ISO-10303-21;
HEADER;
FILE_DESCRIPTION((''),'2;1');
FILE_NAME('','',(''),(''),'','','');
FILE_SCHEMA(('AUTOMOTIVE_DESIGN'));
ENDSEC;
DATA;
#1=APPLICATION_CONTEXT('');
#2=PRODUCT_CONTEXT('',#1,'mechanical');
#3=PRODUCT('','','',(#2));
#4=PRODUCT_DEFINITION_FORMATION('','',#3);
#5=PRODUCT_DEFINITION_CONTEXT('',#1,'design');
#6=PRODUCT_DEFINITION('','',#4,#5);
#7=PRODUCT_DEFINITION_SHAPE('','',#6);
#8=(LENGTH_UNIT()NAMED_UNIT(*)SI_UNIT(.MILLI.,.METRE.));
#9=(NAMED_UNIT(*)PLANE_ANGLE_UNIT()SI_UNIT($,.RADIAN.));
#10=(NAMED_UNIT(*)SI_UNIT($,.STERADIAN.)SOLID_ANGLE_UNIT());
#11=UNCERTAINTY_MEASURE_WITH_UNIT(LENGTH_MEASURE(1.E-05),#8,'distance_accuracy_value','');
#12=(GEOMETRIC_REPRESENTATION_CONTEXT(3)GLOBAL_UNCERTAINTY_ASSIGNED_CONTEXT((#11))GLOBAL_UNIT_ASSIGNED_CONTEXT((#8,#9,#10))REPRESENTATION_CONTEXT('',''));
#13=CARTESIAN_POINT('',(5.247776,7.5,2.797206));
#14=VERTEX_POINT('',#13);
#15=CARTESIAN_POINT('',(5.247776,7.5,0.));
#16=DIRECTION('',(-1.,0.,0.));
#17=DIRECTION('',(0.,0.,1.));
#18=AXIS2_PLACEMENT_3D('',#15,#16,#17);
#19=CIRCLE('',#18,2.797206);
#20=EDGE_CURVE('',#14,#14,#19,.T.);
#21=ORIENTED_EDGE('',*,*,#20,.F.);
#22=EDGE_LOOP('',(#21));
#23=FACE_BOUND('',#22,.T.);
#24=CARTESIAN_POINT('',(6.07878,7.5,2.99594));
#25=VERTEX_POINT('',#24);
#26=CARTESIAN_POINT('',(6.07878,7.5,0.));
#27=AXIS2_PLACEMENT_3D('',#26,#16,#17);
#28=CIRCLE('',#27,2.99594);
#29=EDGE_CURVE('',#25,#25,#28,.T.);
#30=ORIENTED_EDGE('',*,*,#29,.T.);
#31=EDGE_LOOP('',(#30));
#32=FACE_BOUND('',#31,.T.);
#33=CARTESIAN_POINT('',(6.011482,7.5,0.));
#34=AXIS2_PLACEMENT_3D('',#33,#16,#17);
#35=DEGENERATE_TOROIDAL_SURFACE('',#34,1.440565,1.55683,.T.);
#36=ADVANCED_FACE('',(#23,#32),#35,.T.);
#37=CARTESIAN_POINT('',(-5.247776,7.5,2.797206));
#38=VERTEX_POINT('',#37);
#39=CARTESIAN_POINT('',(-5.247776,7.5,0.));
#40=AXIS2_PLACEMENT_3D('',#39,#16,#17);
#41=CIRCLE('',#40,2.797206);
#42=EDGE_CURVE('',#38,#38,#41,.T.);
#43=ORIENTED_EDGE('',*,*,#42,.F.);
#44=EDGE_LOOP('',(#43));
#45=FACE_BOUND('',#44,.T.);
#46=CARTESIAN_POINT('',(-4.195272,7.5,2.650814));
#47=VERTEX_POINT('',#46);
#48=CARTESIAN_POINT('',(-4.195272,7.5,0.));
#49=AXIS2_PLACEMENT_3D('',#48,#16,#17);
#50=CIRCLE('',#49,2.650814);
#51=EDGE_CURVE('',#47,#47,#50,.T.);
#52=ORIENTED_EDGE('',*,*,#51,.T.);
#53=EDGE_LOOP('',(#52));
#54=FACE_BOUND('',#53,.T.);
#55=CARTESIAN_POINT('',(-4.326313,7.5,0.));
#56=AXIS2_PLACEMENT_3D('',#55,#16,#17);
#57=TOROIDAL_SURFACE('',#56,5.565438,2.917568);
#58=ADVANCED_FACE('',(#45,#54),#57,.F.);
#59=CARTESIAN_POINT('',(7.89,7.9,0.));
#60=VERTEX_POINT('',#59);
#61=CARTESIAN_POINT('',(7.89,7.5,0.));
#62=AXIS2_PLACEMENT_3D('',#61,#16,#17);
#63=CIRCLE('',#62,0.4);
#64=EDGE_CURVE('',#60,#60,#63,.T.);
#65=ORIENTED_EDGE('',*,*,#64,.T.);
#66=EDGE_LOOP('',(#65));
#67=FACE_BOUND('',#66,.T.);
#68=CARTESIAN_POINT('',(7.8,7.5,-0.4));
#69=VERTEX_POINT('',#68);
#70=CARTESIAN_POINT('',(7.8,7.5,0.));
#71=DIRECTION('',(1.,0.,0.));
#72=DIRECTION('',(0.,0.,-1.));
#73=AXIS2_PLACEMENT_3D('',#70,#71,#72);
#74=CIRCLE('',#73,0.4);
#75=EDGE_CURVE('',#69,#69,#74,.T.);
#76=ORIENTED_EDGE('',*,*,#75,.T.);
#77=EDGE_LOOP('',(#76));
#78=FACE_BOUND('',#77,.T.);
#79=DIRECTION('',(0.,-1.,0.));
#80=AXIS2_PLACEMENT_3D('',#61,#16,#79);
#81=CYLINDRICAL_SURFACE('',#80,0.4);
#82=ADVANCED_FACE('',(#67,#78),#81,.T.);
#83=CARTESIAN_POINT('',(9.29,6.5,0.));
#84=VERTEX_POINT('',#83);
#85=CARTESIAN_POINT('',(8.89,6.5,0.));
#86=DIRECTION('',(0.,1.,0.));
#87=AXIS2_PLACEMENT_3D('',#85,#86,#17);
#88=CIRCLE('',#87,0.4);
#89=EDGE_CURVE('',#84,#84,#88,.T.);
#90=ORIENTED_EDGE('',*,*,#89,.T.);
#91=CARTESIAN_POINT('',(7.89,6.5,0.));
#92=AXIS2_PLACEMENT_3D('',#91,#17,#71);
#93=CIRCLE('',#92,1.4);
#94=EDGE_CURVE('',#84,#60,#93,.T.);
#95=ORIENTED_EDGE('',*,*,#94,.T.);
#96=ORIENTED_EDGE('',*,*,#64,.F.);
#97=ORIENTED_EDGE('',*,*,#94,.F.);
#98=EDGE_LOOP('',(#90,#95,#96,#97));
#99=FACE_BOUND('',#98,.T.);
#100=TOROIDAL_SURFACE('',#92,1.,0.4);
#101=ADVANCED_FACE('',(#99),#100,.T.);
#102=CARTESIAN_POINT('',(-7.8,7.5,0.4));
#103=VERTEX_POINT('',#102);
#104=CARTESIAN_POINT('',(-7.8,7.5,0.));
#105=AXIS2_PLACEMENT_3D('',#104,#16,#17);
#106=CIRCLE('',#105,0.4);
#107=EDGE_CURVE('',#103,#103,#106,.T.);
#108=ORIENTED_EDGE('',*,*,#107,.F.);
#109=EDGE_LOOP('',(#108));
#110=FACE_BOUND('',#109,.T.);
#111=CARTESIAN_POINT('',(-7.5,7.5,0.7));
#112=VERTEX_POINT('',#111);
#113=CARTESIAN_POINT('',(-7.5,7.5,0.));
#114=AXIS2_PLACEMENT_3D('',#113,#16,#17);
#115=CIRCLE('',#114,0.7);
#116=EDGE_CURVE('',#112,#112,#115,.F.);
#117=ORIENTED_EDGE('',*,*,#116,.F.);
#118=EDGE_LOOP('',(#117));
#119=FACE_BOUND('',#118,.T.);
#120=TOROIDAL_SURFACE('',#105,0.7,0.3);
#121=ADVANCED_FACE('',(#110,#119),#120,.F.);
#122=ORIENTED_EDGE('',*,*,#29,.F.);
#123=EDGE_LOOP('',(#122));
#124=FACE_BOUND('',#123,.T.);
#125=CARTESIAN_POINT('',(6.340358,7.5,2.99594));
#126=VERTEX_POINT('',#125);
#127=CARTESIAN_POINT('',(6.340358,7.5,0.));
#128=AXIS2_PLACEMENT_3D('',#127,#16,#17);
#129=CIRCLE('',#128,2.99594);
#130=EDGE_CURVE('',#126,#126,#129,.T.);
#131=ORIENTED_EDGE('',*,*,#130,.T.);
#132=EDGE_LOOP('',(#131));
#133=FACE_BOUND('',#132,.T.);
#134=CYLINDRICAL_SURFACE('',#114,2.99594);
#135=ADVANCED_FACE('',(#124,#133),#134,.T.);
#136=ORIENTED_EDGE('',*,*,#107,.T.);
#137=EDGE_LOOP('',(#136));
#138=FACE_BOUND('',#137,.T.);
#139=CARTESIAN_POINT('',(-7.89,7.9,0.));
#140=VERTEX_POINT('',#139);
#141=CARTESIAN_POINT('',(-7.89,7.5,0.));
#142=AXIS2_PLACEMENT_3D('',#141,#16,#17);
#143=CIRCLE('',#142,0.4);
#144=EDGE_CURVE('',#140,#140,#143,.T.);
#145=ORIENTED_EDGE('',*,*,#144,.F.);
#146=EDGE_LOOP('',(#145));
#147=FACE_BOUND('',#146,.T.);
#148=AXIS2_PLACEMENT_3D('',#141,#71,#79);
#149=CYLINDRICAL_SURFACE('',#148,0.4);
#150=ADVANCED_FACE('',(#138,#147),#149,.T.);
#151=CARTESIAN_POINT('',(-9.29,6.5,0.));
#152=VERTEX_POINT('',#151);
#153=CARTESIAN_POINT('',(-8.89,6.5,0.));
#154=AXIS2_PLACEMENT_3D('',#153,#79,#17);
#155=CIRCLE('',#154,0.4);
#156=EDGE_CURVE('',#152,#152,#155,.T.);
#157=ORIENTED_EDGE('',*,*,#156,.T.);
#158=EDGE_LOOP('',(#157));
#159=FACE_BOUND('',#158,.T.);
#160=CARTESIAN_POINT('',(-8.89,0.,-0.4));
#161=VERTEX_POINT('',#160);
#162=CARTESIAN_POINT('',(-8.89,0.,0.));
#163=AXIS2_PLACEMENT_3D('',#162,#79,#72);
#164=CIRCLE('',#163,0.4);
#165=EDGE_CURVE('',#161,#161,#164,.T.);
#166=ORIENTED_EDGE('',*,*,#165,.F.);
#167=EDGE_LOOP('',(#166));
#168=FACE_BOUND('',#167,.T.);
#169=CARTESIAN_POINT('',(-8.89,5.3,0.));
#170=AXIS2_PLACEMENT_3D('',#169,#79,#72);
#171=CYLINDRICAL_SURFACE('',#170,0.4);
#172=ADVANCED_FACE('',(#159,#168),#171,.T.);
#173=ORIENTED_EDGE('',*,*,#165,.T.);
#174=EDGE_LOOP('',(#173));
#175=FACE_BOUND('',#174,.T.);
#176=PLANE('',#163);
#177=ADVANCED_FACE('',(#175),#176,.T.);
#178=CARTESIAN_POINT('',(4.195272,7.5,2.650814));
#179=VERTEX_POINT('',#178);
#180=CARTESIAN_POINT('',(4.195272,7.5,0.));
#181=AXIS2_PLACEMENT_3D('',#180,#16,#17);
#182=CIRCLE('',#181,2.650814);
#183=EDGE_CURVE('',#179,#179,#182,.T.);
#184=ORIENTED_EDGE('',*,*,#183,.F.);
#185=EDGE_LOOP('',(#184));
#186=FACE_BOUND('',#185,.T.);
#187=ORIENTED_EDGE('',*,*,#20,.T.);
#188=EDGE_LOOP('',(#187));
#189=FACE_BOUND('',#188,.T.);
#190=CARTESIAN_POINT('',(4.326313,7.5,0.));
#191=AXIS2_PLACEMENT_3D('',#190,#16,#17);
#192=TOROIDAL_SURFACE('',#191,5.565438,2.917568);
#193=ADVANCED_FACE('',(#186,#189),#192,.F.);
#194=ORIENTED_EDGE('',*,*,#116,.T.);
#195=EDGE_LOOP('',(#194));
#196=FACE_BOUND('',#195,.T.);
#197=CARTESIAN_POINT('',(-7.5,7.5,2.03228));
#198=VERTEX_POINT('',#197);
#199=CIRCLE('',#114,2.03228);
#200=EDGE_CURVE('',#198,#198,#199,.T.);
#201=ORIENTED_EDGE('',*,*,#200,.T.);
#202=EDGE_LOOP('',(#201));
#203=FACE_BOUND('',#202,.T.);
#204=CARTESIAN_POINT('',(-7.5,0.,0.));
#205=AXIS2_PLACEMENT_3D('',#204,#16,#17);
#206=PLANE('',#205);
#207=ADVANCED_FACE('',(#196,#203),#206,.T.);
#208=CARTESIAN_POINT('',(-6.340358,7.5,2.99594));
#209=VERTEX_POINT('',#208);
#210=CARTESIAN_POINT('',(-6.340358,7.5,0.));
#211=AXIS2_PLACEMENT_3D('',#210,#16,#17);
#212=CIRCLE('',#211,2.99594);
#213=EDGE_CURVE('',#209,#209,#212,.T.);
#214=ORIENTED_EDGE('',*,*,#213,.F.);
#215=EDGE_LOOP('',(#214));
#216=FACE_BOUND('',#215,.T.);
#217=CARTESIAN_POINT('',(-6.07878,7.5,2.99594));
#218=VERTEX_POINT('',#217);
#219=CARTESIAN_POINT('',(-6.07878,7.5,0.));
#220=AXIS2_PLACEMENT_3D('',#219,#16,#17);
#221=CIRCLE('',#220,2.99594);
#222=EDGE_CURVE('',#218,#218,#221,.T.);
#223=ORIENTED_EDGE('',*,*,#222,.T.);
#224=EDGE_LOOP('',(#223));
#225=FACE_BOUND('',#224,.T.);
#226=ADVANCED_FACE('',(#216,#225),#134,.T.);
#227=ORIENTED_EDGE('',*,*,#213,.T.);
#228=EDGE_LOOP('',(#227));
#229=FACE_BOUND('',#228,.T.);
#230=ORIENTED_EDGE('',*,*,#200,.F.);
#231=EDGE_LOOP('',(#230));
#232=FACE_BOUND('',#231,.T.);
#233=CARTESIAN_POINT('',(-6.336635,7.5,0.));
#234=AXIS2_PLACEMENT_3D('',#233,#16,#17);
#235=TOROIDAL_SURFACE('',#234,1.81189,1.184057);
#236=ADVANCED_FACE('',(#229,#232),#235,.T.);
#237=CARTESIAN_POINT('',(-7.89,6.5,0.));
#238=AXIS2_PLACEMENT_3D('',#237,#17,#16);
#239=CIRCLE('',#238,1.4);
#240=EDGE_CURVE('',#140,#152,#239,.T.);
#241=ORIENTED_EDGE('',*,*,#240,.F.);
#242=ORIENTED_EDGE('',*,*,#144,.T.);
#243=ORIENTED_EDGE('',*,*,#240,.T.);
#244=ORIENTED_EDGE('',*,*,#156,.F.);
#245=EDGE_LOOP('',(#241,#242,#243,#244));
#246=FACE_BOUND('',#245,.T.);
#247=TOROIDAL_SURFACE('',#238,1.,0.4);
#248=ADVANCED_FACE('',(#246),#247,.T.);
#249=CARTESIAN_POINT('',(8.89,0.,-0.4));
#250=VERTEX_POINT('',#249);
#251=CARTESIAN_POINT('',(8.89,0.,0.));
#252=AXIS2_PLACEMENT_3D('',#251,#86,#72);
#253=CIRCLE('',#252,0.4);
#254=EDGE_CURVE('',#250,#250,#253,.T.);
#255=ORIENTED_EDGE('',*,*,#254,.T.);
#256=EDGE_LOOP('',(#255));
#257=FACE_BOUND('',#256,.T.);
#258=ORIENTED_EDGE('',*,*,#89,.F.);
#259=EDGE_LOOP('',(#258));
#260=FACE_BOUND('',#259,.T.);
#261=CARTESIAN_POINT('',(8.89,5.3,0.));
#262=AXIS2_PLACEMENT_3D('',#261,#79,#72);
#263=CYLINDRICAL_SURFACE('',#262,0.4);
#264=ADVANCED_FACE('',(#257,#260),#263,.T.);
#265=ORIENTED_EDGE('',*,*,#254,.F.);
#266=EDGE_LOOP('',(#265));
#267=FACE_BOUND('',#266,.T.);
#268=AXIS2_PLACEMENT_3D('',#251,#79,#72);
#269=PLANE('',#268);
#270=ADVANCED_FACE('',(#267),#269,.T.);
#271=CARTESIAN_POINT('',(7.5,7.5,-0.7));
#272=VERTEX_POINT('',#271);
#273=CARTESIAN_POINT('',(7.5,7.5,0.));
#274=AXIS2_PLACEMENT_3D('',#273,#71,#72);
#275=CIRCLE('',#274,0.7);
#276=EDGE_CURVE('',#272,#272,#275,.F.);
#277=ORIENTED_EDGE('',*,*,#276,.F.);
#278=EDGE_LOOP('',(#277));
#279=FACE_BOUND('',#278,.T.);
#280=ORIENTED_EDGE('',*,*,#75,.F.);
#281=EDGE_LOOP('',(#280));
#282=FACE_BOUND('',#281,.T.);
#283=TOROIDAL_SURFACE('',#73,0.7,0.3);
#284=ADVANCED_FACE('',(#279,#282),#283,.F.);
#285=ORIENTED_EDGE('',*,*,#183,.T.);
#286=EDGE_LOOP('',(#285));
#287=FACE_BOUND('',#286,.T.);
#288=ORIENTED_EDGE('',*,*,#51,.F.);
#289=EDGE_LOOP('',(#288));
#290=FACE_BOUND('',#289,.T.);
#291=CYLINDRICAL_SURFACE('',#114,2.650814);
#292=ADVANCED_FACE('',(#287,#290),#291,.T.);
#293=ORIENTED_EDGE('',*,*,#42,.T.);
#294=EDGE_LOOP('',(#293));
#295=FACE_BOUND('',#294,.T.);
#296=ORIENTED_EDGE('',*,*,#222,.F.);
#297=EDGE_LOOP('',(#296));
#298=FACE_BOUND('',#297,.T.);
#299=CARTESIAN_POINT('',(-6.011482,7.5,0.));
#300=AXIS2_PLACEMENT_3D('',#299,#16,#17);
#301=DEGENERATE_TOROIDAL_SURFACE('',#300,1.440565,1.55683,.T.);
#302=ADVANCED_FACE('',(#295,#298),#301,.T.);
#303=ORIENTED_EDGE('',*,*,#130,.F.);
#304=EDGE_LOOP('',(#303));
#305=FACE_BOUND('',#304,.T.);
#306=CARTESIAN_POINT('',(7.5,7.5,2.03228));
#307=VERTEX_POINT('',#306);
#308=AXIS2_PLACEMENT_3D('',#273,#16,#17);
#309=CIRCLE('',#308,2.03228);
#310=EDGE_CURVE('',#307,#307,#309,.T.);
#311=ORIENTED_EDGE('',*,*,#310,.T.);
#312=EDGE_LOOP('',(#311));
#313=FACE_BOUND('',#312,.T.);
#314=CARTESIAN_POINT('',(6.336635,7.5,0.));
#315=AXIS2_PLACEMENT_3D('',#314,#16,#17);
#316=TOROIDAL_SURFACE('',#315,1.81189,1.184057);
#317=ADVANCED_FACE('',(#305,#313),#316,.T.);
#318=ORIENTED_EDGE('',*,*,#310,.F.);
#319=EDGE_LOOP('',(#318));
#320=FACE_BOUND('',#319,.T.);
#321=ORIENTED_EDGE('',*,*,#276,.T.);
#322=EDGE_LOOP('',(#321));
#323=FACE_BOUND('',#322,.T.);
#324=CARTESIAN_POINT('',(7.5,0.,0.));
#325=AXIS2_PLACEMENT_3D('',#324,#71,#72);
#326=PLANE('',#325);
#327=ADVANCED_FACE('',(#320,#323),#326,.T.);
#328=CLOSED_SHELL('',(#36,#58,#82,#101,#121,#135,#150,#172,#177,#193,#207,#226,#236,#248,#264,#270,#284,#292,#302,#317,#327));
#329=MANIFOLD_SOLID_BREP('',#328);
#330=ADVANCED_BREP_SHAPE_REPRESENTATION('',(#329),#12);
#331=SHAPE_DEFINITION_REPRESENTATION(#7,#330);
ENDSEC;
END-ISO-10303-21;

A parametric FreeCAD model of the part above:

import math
import FreeCAD as App
import Part
import Sketcher
from FreeCAD import Vector


def edges_at(feature, points):
    """Names of the edges that pass closest to the given points."""
    edges = feature.Shape.Edges
    near = lambda p: min(range(len(edges)), key=lambda i: edges[i].distToShape(Part.Vertex(*p))[0])
    return sorted({f"Edge{near(p) + 1}" for p in points})

doc = App.newDocument("Part")
body = doc.addObject("PartDesign::Body", "Body")

# Sketch on XZ plane
sketch1 = doc.addObject("Sketcher::SketchObject", "Sketch")
body.addObject(sketch1)
sketch1.AttachmentSupport = (doc.XZ_Plane, [""])
sketch1.MapMode = "FlatFace"
sketch1.addGeometry(Part.Circle(Vector(8.89, 0, 0), Vector(0, 0, 1), 0.4), False)
sketch1.addConstraint([
    Sketcher.Constraint("PointOnObject", 0, 3, -1),
    Sketcher.Constraint("Diameter", 0, 0.8),
    Sketcher.Constraint("DistanceX", -1, 1, 0, 3, 8.89),
])
pad1 = doc.addObject("PartDesign::Pad", "Pad")
body.addObject(pad1)
pad1.Profile = sketch1
pad1.Length = 5.3
pad1.Reversed = True
body2 = doc.addObject("PartDesign::Body", "Body001")

# Sketch on XY plane
sketch2 = doc.addObject("Sketcher::SketchObject", "Sketch001")
body2.addObject(sketch2)
sketch2.AttachmentSupport = (doc.getObject("XY_Plane001"), [""])
sketch2.MapMode = "FlatFace"
sketch2.addGeometry([
    Part.LineSegment(Vector(-7.5, 7.5, 0), Vector(7.5, 7.5, 0)),  # 0
    Part.LineSegment(Vector(7.5, 7.5, 0), Vector(7.5, 9.53228, 0)),  # 1
    Part.ArcOfCircle(Part.Circle(Vector(6.336635, 9.31189, 0), Vector(0, 0, 1), 1.184057), math.radians(10.727096), math.radians(89.819862)),  # 2
    Part.LineSegment(Vector(6.340358, 10.49594, 0), Vector(6.07878, 10.49594, 0)),  # 3
    Part.ArcOfCircle(Part.Circle(Vector(6.011482, 8.940565, 0), Vector(0, 0, 1), 1.55683), math.radians(87.522454), math.radians(119.37685)),  # 4
    Part.ArcOfCircle(Part.Circle(Vector(4.326313, 13.065438, 0), Vector(0, 0, 1), 2.917568), math.radians(-92.574261), math.radians(-71.588906)),  # 5
    Part.LineSegment(Vector(4.195272, 10.150814, 0), Vector(-4.195272, 10.150814, 0)),  # 6
    Part.ArcOfCircle(Part.Circle(Vector(-4.326313, 13.065438, 0), Vector(0, 0, 1), 2.917568), math.radians(-108.411094), math.radians(-87.425739)),  # 7
    Part.ArcOfCircle(Part.Circle(Vector(-6.011482, 8.940565, 0), Vector(0, 0, 1), 1.55683), math.radians(60.62315), math.radians(92.477546)),  # 8
    Part.LineSegment(Vector(-6.07878, 10.49594, 0), Vector(-6.340358, 10.49594, 0)),  # 9
    Part.ArcOfCircle(Part.Circle(Vector(-6.336635, 9.31189, 0), Vector(0, 0, 1), 1.184057), math.radians(90.180138), math.radians(169.272904)),  # 10
    Part.LineSegment(Vector(-7.5, 9.53228, 0), Vector(-7.5, 7.5, 0)),  # 11
], False)
sketch2.addGeometry(Part.LineSegment(Vector(-7.5, 7.5, 0), Vector(7.5, 7.5, 0)), True)  # axis
sketch2.addConstraint([
    Sketcher.Constraint("Coincident", 0, 2, 1, 1),
    Sketcher.Constraint("Coincident", 1, 2, 2, 1),
    Sketcher.Constraint("Coincident", 2, 2, 3, 1),
    Sketcher.Constraint("Coincident", 3, 2, 4, 1),
    Sketcher.Constraint("Coincident", 4, 2, 5, 2),
    Sketcher.Constraint("Coincident", 5, 1, 6, 1),
    Sketcher.Constraint("Coincident", 6, 2, 7, 2),
    Sketcher.Constraint("Coincident", 7, 1, 8, 1),
    Sketcher.Constraint("Coincident", 8, 2, 9, 1),
    Sketcher.Constraint("Coincident", 9, 2, 10, 1),
    Sketcher.Constraint("Coincident", 10, 2, 11, 1),
    Sketcher.Constraint("Coincident", 11, 2, 0, 1),
    Sketcher.Constraint("Horizontal", 0),
    Sketcher.Constraint("Vertical", 1),
    Sketcher.Constraint("Horizontal", 3),
    Sketcher.Constraint("Horizontal", 6),
    Sketcher.Constraint("Horizontal", 9),
    Sketcher.Constraint("Vertical", 11),
    Sketcher.Constraint("Horizontal", 12),
    Sketcher.Constraint("Coincident", 12, 1, 11, 2),
    Sketcher.Constraint("Equal", 5, 7),
    Sketcher.Constraint("Equal", 4, 8),
    Sketcher.Constraint("Equal", 2, 10),
    Sketcher.Constraint("Symmetric", 5, 3, 7, 3, -2),
    Sketcher.Constraint("Symmetric", 4, 3, 8, 3, -2),
    Sketcher.Constraint("Symmetric", 2, 3, 10, 3, -2),
    Sketcher.Constraint("Horizontal", 1, 2, 10, 2),
    Sketcher.Constraint("Vertical", 1, 2, 12, 2),
    Sketcher.Constraint("Equal", 3, 9),
    Sketcher.Constraint("DistanceX", 0, 1, 0, 2, 15.0),
    Sketcher.Constraint("DistanceY", -1, 1, 0, 2, 7.5),
    Sketcher.Constraint("Radius", 4, 1.55683),
    Sketcher.Constraint("Radius", 5, 2.917568),
    Sketcher.Constraint("Radius", 2, 1.184057),
    Sketcher.Constraint("DistanceY", 1, 1, 1, 2, 2.03228),
    Sketcher.Constraint("DistanceX", 4, 3, 3, 2, 0.067298),
    Sketcher.Constraint("DistanceX", 3, 2, 3, 1, 0.261577),
    Sketcher.Constraint("DistanceX", 6, 2, 6, 1, 8.390544),
    Sketcher.Constraint("DistanceY", -1, 1, 2, 3, 9.31189),
    Sketcher.Constraint("DistanceX", -1, 1, 4, 3, 6.011482),
    Sketcher.Constraint("DistanceY", -1, 1, 5, 3, 13.065438),
    Sketcher.Constraint("DistanceX", 5, 3, 4, 3, 1.685169),
])
revolution = doc.addObject("PartDesign::Revolution", "Revolution")
body2.addObject(revolution)
revolution.Profile = sketch2
revolution.ReferenceAxis = (sketch2, ["Axis0"])
revolution.Angle = 360
body.AllowCompound = True
doc.recompute()

boolean = doc.addObject("PartDesign::Boolean", "Boolean")
body.addObject(boolean)
boolean.Type = "Fuse"
boolean.addObjects([body2])

# Sketch on XZ plane
sketch3 = doc.addObject("Sketcher::SketchObject", "Sketch002")
body.addObject(sketch3)
sketch3.AttachmentSupport = (doc.XZ_Plane, [""])
sketch3.MapMode = "FlatFace"
sketch3.AttachmentOffset = App.Placement(Vector(0, 0, -5.3), App.Rotation())
sketch3.addGeometry(Part.Circle(Vector(8.89, 0, 0), Vector(0, 0, 1), 0.4), False)
sketch3.addConstraint([
    Sketcher.Constraint("PointOnObject", 0, 3, -1),
    Sketcher.Constraint("Diameter", 0, 0.8),
    Sketcher.Constraint("DistanceX", -1, 1, 0, 3, 8.89),
])

# Sketch on XY plane
sketch4 = doc.addObject("Sketcher::SketchObject", "Sketch003")
body.addObject(sketch4)
sketch4.AttachmentSupport = (doc.XY_Plane, [""])
sketch4.MapMode = "FlatFace"
sketch4.addGeometry([
    Part.LineSegment(Vector(3.5, 7.5, 0), Vector(7.89, 7.5, 0)),
    Part.ArcOfCircle(Part.Circle(Vector(7.89, 6.5, 0), Vector(0, 0, 1), 1), math.radians(0), math.radians(90)),
    Part.LineSegment(Vector(8.89, 6.5, 0), Vector(8.89, 5.3, 0)),
], False)
sketch4.addConstraint([
    Sketcher.Constraint("Tangent", 0, 2, 1, 2),
    Sketcher.Constraint("Tangent", 1, 1, 2, 1),
    Sketcher.Constraint("Horizontal", 0),
    Sketcher.Constraint("Vertical", 2),
    Sketcher.Constraint("Radius", 1, 1.0),
    Sketcher.Constraint("DistanceY", 2, 2, 2, 1, 1.2),
    Sketcher.Constraint("DistanceX", 0, 1, 0, 2, 4.39),
    Sketcher.Constraint("DistanceY", -1, 1, 1, 3, 6.5),
    Sketcher.Constraint("DistanceX", -1, 1, 0, 1, 3.5),
])
doc.recompute()

additivepipe = doc.addObject("PartDesign::AdditivePipe", "AdditivePipe")
body.addObject(additivepipe)
additivepipe.Profile = sketch3
additivepipe.Spine = (sketch4, ["Edge1", "Edge2", "Edge3"])
doc.recompute()

mirrored = doc.addObject("PartDesign::Mirrored", "Mirrored")
body.addObject(mirrored)
mirrored.Originals = [pad1, additivepipe]
mirrored.MirrorPlane = (doc.YZ_Plane, [""])
body.Tip = mirrored
doc.recompute()

fillet = doc.addObject("PartDesign::Fillet", "Fillet")
body.addObject(fillet)
fillet.Base = (mirrored, edges_at(mirrored, [(7.5, 7.1, 0), (-7.5, 7.1, 0)]))
fillet.Radius = 0.3

doc.recompute()
